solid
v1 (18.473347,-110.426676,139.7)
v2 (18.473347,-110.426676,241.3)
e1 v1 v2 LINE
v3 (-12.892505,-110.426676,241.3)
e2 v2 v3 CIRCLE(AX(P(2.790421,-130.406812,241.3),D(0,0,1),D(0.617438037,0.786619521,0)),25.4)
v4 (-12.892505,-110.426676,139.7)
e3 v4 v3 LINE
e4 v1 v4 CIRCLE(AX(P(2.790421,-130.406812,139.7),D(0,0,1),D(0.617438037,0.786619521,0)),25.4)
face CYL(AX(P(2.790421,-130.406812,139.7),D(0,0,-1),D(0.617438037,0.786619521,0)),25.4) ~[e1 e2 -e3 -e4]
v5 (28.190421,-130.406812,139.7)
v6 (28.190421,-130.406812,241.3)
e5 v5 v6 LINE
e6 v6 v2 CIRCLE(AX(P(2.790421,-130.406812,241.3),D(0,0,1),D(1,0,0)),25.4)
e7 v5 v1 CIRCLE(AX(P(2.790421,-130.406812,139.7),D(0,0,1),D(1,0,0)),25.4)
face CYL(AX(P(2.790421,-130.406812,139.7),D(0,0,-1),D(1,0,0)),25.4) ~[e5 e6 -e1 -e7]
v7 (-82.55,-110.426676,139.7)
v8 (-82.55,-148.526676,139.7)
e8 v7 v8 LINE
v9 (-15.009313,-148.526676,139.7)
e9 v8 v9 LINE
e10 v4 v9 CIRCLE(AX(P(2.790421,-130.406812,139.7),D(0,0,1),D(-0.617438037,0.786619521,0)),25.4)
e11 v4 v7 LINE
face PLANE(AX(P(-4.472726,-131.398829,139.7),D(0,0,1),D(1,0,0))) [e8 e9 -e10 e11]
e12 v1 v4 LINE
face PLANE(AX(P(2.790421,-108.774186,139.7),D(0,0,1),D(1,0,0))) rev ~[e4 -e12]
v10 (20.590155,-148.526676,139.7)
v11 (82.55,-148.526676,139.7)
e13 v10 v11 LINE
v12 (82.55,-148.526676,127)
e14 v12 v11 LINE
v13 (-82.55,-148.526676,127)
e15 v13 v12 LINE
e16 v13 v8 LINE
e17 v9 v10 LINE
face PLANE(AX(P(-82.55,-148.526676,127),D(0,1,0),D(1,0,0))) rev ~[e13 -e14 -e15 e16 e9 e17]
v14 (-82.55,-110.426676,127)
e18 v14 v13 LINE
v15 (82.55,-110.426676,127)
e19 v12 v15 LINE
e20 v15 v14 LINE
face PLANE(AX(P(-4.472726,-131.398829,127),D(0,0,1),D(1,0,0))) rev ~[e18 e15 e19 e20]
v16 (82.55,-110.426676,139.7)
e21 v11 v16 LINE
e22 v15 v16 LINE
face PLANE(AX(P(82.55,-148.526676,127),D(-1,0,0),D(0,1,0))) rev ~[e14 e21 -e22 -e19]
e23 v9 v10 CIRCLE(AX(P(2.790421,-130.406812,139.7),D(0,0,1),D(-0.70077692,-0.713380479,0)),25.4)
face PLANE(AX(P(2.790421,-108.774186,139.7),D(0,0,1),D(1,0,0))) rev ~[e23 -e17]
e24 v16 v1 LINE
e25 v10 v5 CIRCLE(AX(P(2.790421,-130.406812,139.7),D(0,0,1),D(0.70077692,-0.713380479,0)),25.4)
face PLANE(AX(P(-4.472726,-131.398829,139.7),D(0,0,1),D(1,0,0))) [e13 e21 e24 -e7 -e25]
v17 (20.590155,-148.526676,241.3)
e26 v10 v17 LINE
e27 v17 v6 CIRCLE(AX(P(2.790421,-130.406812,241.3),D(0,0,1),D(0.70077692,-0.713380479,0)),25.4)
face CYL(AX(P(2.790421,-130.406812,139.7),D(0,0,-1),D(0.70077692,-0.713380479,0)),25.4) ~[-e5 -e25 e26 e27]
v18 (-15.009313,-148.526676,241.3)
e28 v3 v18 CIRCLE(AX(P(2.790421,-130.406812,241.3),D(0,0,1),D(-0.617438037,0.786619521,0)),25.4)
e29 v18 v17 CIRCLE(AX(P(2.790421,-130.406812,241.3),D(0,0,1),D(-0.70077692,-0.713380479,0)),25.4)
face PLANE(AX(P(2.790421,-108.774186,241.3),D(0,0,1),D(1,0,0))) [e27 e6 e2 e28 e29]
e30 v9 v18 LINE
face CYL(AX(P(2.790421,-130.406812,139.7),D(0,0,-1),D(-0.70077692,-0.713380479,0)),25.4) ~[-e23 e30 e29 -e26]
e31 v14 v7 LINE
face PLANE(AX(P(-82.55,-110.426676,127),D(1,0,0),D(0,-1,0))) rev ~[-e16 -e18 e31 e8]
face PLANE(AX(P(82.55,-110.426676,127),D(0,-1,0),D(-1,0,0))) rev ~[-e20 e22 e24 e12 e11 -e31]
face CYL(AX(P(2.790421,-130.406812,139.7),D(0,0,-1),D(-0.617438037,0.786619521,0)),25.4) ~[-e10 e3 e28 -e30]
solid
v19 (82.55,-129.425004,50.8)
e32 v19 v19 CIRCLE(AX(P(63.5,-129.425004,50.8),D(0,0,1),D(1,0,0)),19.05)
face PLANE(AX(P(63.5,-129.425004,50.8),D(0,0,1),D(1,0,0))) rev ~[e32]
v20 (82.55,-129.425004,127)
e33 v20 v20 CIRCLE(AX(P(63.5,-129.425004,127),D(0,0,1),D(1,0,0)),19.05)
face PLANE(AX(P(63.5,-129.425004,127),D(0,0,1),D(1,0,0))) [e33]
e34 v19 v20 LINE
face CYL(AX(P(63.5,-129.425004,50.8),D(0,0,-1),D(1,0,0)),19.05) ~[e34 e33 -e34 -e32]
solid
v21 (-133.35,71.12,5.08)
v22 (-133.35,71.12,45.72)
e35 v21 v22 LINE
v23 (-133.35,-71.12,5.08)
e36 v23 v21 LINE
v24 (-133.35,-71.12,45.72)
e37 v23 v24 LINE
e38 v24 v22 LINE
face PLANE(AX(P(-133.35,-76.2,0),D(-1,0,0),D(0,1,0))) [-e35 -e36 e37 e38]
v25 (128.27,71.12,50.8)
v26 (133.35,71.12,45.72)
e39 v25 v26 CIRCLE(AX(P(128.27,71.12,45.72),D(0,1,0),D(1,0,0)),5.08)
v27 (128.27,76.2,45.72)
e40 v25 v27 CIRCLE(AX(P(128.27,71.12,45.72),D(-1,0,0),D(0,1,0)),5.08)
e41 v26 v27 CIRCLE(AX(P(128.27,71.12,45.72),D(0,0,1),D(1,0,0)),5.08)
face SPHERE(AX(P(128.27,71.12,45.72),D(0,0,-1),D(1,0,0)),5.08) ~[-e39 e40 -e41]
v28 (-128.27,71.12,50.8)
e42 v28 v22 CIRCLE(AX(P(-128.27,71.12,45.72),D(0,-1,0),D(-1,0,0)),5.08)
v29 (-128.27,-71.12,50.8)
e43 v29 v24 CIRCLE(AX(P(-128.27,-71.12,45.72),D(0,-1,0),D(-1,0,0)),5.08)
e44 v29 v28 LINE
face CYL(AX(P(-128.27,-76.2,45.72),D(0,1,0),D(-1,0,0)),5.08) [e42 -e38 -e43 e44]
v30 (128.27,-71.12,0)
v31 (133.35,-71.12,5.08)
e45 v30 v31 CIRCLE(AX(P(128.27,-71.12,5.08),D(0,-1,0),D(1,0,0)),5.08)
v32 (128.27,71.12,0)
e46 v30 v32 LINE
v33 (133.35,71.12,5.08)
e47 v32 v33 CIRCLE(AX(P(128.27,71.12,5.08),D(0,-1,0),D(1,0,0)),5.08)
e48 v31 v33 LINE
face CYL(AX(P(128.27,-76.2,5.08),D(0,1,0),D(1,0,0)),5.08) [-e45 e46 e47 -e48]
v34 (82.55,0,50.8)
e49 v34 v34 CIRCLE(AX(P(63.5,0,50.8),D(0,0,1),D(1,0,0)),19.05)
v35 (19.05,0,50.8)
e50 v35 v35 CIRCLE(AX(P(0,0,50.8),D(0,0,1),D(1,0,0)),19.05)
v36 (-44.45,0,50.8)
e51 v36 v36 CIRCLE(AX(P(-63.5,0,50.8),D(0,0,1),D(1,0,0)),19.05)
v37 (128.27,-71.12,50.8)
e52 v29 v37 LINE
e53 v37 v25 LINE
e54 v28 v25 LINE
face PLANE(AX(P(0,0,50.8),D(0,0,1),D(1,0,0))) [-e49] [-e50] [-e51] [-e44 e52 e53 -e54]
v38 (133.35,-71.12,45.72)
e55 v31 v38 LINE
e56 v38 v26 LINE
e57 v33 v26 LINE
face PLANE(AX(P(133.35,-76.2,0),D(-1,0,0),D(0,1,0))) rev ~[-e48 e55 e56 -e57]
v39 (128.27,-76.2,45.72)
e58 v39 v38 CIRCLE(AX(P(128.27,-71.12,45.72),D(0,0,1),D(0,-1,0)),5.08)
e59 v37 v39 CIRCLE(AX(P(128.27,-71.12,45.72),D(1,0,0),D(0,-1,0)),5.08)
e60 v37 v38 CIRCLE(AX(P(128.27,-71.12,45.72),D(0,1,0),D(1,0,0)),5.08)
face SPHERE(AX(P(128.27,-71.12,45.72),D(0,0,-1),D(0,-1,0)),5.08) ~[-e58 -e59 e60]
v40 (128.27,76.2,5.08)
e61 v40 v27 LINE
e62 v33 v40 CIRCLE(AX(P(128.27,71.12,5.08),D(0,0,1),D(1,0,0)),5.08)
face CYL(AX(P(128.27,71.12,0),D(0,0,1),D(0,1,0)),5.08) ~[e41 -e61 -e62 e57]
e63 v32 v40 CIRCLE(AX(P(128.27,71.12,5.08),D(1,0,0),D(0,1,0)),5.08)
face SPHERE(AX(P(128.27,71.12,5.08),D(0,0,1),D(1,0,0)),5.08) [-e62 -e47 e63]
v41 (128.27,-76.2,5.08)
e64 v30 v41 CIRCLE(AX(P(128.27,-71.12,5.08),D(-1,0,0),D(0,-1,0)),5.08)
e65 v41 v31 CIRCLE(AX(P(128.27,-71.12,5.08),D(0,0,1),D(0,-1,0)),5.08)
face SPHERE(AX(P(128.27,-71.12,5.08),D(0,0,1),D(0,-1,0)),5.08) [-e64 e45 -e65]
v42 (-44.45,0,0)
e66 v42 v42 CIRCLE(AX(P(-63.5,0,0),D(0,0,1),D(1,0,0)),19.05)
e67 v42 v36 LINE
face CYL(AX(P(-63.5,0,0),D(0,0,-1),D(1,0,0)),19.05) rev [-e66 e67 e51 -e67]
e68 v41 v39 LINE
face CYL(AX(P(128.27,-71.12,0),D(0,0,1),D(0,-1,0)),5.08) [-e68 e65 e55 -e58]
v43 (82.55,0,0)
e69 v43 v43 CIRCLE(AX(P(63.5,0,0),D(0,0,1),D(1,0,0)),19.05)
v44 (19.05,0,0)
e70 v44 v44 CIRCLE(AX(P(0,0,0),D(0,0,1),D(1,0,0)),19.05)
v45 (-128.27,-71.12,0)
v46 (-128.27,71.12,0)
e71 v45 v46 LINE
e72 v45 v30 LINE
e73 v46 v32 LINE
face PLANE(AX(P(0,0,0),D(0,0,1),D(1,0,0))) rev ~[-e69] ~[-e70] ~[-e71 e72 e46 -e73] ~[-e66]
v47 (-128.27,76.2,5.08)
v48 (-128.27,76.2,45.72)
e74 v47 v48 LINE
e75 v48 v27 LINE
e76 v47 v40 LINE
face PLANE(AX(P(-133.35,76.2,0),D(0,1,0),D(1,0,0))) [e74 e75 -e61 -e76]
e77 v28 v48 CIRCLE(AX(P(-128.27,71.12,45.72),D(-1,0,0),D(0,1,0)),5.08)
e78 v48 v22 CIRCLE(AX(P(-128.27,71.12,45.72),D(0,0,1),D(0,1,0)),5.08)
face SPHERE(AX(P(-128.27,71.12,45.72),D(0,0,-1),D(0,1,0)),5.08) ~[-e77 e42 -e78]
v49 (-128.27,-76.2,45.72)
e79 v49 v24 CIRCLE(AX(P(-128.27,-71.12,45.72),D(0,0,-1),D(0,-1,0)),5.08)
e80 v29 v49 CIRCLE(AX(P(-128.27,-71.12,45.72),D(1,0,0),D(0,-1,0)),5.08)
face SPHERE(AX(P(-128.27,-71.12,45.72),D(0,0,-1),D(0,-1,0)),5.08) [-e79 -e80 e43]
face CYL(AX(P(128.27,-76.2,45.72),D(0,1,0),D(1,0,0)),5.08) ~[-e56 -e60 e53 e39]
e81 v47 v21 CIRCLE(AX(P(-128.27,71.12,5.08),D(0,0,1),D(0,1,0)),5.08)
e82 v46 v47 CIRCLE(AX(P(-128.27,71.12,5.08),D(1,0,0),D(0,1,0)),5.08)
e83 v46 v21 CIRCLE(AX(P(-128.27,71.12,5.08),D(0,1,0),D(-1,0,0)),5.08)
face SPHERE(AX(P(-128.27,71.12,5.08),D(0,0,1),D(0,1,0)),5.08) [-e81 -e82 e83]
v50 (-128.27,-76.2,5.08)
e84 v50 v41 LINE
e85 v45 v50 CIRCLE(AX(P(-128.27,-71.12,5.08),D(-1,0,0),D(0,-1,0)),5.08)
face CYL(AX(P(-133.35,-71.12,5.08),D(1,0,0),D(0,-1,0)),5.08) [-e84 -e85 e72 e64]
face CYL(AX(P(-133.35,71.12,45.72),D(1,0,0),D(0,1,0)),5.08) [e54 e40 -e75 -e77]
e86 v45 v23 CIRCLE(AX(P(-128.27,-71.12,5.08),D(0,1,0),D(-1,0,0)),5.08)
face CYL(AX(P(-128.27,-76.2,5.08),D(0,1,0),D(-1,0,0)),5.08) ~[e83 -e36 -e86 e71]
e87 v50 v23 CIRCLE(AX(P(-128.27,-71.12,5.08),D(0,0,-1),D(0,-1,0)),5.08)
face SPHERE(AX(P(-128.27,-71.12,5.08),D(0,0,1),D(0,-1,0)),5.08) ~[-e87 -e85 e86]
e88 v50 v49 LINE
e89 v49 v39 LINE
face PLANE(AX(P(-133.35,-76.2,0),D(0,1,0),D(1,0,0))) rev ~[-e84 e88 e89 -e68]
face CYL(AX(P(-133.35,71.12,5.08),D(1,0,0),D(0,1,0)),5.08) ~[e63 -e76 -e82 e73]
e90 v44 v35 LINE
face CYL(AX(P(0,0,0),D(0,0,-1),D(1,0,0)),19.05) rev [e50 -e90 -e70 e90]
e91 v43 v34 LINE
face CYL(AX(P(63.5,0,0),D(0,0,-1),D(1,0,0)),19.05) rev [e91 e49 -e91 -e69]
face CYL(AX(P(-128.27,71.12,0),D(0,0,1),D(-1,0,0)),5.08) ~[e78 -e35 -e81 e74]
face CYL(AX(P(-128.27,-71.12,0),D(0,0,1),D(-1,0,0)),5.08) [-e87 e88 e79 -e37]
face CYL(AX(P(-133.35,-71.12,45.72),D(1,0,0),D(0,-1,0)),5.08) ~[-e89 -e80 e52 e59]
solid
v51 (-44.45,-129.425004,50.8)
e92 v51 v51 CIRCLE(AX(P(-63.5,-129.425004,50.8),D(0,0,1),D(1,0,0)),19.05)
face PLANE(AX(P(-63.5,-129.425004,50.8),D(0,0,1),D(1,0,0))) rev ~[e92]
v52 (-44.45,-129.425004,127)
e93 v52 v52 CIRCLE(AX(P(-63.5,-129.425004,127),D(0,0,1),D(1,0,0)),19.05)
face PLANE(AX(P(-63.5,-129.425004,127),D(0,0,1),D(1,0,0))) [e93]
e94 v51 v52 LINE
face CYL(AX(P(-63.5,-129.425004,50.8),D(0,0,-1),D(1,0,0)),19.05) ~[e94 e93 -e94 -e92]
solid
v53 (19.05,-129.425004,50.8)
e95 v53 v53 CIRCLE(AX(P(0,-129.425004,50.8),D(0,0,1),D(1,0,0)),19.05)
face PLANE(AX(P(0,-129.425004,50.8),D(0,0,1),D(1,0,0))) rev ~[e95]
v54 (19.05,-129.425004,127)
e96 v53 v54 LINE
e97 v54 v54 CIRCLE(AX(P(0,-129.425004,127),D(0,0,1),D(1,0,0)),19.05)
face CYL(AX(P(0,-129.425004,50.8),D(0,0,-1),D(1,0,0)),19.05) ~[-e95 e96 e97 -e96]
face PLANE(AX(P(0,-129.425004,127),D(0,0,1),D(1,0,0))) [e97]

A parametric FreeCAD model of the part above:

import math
import FreeCAD as App
import Part
import Sketcher
from FreeCAD import Vector
Q = App.Units.Quantity


def edges_at(feature, points):
    """Names of the edges that pass closest to the given points."""
    edges = feature.Shape.Edges
    near = lambda p: min(range(len(edges)), key=lambda i: edges[i].distToShape(Part.Vertex(*p))[0])
    return sorted({f"Edge{near(p) + 1}" for p in points})


def add_polygon(sketch, points):
    """Adds a closed chain of lines whose ends are joined by coincident constraints."""
    first, n = sketch.GeometryCount, len(points)
    for a, b in zip(points, points[1:] + points[:1]):
        sketch.addGeometry(Part.LineSegment(App.Vector(*a, 0), App.Vector(*b, 0)), False)
    for i in range(n):
        sketch.addConstraint(Sketcher.Constraint("Coincident", first + i, 2, first + (i + 1) % n, 1))

doc = App.newDocument("Part")
body = doc.addObject("PartDesign::Body", "Body")

sketch1 = body.newObject("Sketcher::SketchObject", "Sketch")
sketch1.AttachmentSupport = (doc.getObject("XY_Plane"), [""])
sketch1.MapMode = "FlatFace"
add_polygon(sketch1, [(-133.35, 76.2), (-133.35, -76.2), (133.35, -76.2), (133.35, 76.2)])
sketch1.addGeometry(Part.Circle(Vector(-63.5, 0, 0), Vector(0, 0, 1), 19.05), False)
sketch1.addGeometry(Part.Circle(Vector(0, 0, 0), Vector(0, 0, 1), 19.05), False)
sketch1.addGeometry(Part.Circle(Vector(63.5, 0, 0), Vector(0, 0, 1), 19.05), False)
sketch1.addConstraint(Sketcher.Constraint("Vertical", 0))
sketch1.addConstraint(Sketcher.Constraint("Horizontal", 1))
sketch1.addConstraint(Sketcher.Constraint("Vertical", 2))
sketch1.addConstraint(Sketcher.Constraint("Horizontal", 3))
sketch1.addConstraint(Sketcher.Constraint("Coincident", 5, 3, -1, 1))
sketch1.addConstraint(Sketcher.Constraint("Equal", 4, 5))
sketch1.addConstraint(Sketcher.Constraint("Equal", 5, 6))
sketch1.addConstraint(Sketcher.Constraint("Symmetric", 4, 3, 6, 3, -1, 1))
sketch1.addConstraint(Sketcher.Constraint("Symmetric", 0, 2, 2, 2, -1, 1))
sketch1.addConstraint(Sketcher.Constraint("PointOnObject", 4, 3, -1))
sketch1.addConstraint(Sketcher.Constraint("Diameter", 4, Q("1.5 in")))
sketch1.addConstraint(Sketcher.Constraint("DistanceY", 0, 2, 0, 1, Q("6 in")))
sketch1.addConstraint(Sketcher.Constraint("DistanceX", 1, 1, 1, 2, Q("10.5 in")))
sketch1.addConstraint(Sketcher.Constraint("DistanceX", 4, 3, 6, 3, Q("5 in")))
pad1 = body.newObject("PartDesign::Pad", "Pad")
pad1.Profile = sketch1
pad1.Length = Q("2 in")
doc.recompute()

fillet = body.newObject("PartDesign::Fillet", "Fillet")
fillet.Base = (pad1, edges_at(pad1, [
    (-133.35, -76.2, 25.4),
    (133.35, -76.2, 25.4),
    (0, -76.2, 0),
    (0, -76.2, 50.8),
    (133.35, 76.2, 25.4),
    (133.35, 0, 0),
    (133.35, 0, 50.8),
    (-133.35, 76.2, 25.4),
    (0, 76.2, 0),
    (0, 76.2, 50.8),
    (-133.35, 0, 0),
    (-133.35, 0, 50.8),
]))
fillet.Radius = Q("0.2 in")
body2 = doc.addObject("PartDesign::Body", "Body001")

sketch2 = body2.newObject("Sketcher::SketchObject", "Sketch001")
sketch2.AttachmentSupport = (doc.getObject("XY_Plane001"), [""])
sketch2.MapMode = "FlatFace"
sketch2.AttachmentOffset = App.Placement(Vector(0, 0, 2 * 25.4), App.Rotation())
sketch2.addGeometry(Part.Circle(Vector(-63.5, -129.425004, 0), Vector(0, 0, 1), 19.05), False)
sketch2.addConstraint(Sketcher.Constraint("Diameter", 0, Q("1.5 in")))
sketch2.addConstraint(Sketcher.Constraint("DistanceX", 0, 3, -1, 1, Q("2.5 in")))
sketch2.addConstraint(Sketcher.Constraint("DistanceY", 0, 3, -1, 1, Q("129.425004 mm")))
pad2 = body2.newObject("PartDesign::Pad", "Pad001")
pad2.Profile = sketch2
pad2.Length = Q("3 in")
body3 = doc.addObject("PartDesign::Body", "Body002")

sketch3 = body3.newObject("Sketcher::SketchObject", "Sketch002")
sketch3.AttachmentSupport = (doc.getObject("XY_Plane002"), [""])
sketch3.MapMode = "FlatFace"
sketch3.AttachmentOffset = App.Placement(Vector(0, 0, 2 * 25.4), App.Rotation())
sketch3.addGeometry(Part.Circle(Vector(0, -129.425004, 0), Vector(0, 0, 1), 19.05), False)
sketch3.addConstraint(Sketcher.Constraint("PointOnObject", 0, 3, -2))
sketch3.addConstraint(Sketcher.Constraint("Diameter", 0, Q("1.5 in")))
sketch3.addConstraint(Sketcher.Constraint("DistanceY", 0, 3, -1, 1, Q("129.425004 mm")))
pad3 = body3.newObject("PartDesign::Pad", "Pad002")
pad3.Profile = sketch3
pad3.Length = Q("3 in")
body4 = doc.addObject("PartDesign::Body", "Body003")

sketch4 = body4.newObject("Sketcher::SketchObject", "Sketch003")
sketch4.AttachmentSupport = (doc.getObject("XY_Plane003"), [""])
sketch4.MapMode = "FlatFace"
sketch4.AttachmentOffset = App.Placement(Vector(0, 0, 2 * 25.4), App.Rotation())
sketch4.addGeometry(Part.Circle(Vector(63.5, -129.425004, 0), Vector(0, 0, 1), 19.05), False)
sketch4.addConstraint(Sketcher.Constraint("Diameter", 0, Q("1.5 in")))
sketch4.addConstraint(Sketcher.Constraint("DistanceX", -1, 1, 0, 3, Q("2.5 in")))
sketch4.addConstraint(Sketcher.Constraint("DistanceY", 0, 3, -1, 1, Q("129.425004 mm")))
pad4 = body4.newObject("PartDesign::Pad", "Pad003")
pad4.Profile = sketch4
pad4.Length = Q("3 in")
body5 = doc.addObject("PartDesign::Body", "Body004")

sketch5 = body5.newObject("Sketcher::SketchObject", "Sketch004")
sketch5.AttachmentSupport = (doc.getObject("XY_Plane004"), [""])
sketch5.MapMode = "FlatFace"
sketch5.AttachmentOffset = App.Placement(Vector(0, 0, 5 * 25.4), App.Rotation())
add_polygon(sketch5, [(-82.55, -148.526676), (82.55, -148.526676), (82.55, -110.426676), (-82.55, -110.426676)])
sketch5.addConstraint(Sketcher.Constraint("Horizontal", 0))
sketch5.addConstraint(Sketcher.Constraint("Vertical", 1))
sketch5.addConstraint(Sketcher.Constraint("Horizontal", 2))
sketch5.addConstraint(Sketcher.Constraint("Vertical", 3))
sketch5.addConstraint(Sketcher.Constraint("DistanceX", 0, 1, 0, 2, Q("6.5 in")))
sketch5.addConstraint(Sketcher.Constraint("DistanceY", 1, 1, 1, 2, Q("1.5 in")))
sketch5.addConstraint(Sketcher.Constraint("DistanceX", -1, 1, 0, 2, Q("3.25 in")))
sketch5.addConstraint(Sketcher.Constraint("DistanceY", 0, 2, -1, 1, Q("148.526676 mm")))
pad5 = body5.newObject("PartDesign::Pad", "Pad004")
pad5.Profile = sketch5
pad5.Length = Q("0.5 in")

sketch6 = body5.newObject("Sketcher::SketchObject", "Sketch005")
sketch6.AttachmentSupport = (doc.getObject("XY_Plane004"), [""])
sketch6.MapMode = "FlatFace"
sketch6.AttachmentOffset = App.Placement(Vector(0, 0, 5.5 * 25.4), App.Rotation())
sketch6.addGeometry(Part.ArcOfCircle(Part.Circle(Vector(2.790421, -130.406812, 0), Vector(0, 0, 1), 25.4), math.radians(51.870713), math.radians(128.129287)), False)
sketch6.addGeometry(Part.ArcOfCircle(Part.Circle(Vector(2.790421, -130.406812, 0), Vector(0, 0, 1), 25.4), math.radians(128.129287), math.radians(225.51063)), False)
sketch6.addGeometry(Part.ArcOfCircle(Part.Circle(Vector(2.790421, -130.406812, 0), Vector(0, 0, 1), 25.4), math.radians(-134.48937), math.radians(-45.51063)), False)
sketch6.addGeometry(Part.ArcOfCircle(Part.Circle(Vector(2.790421, -130.406812, 0), Vector(0, 0, 1), 25.4), math.radians(-45.51063), math.radians(0)), False)
sketch6.addGeometry(Part.ArcOfCircle(Part.Circle(Vector(2.790421, -130.406812, 0), Vector(0, 0, 1), 25.4), math.radians(0), math.radians(51.870713)), False)
sketch6.addConstraint(Sketcher.Constraint("Tangent", 0, 2, 1, 1))
sketch6.addConstraint(Sketcher.Constraint("Tangent", 1, 2, 2, 1))
sketch6.addConstraint(Sketcher.Constraint("Tangent", 2, 2, 3, 1))
sketch6.addConstraint(Sketcher.Constraint("Tangent", 3, 2, 4, 1))
sketch6.addConstraint(Sketcher.Constraint("Tangent", 4, 2, 0, 1))
sketch6.addConstraint(Sketcher.Constraint("Coincident", 2, 3, 0, 3))
sketch6.addConstraint(Sketcher.Constraint("Horizontal", 1, 2, 2, 2))
sketch6.addConstraint(Sketcher.Constraint("Horizontal", 4, 3, 3, 2))
sketch6.addConstraint(Sketcher.Constraint("Horizontal", 0, 2, 4, 2))
sketch6.addConstraint(Sketcher.Constraint("Radius", 0, Q("1 in")))
sketch6.addConstraint(Sketcher.Constraint("DistanceX", -1, 1, 0, 3, Q("2.790421 mm")))
sketch6.addConstraint(Sketcher.Constraint("DistanceY", 0, 3, -1, 1, Q("130.406812 mm")))
sketch6.addConstraint(Sketcher.Constraint("DistanceX", 0, 2, -1, 1, Q("12.892505 mm")))
sketch6.addConstraint(Sketcher.Constraint("DistanceX", 1, 2, -1, 1, Q("15.009313 mm")))
pad6 = body5.newObject("PartDesign::Pad", "Pad005")
pad6.Profile = sketch6
pad6.Length = Q("4 in")

doc.recompute()
